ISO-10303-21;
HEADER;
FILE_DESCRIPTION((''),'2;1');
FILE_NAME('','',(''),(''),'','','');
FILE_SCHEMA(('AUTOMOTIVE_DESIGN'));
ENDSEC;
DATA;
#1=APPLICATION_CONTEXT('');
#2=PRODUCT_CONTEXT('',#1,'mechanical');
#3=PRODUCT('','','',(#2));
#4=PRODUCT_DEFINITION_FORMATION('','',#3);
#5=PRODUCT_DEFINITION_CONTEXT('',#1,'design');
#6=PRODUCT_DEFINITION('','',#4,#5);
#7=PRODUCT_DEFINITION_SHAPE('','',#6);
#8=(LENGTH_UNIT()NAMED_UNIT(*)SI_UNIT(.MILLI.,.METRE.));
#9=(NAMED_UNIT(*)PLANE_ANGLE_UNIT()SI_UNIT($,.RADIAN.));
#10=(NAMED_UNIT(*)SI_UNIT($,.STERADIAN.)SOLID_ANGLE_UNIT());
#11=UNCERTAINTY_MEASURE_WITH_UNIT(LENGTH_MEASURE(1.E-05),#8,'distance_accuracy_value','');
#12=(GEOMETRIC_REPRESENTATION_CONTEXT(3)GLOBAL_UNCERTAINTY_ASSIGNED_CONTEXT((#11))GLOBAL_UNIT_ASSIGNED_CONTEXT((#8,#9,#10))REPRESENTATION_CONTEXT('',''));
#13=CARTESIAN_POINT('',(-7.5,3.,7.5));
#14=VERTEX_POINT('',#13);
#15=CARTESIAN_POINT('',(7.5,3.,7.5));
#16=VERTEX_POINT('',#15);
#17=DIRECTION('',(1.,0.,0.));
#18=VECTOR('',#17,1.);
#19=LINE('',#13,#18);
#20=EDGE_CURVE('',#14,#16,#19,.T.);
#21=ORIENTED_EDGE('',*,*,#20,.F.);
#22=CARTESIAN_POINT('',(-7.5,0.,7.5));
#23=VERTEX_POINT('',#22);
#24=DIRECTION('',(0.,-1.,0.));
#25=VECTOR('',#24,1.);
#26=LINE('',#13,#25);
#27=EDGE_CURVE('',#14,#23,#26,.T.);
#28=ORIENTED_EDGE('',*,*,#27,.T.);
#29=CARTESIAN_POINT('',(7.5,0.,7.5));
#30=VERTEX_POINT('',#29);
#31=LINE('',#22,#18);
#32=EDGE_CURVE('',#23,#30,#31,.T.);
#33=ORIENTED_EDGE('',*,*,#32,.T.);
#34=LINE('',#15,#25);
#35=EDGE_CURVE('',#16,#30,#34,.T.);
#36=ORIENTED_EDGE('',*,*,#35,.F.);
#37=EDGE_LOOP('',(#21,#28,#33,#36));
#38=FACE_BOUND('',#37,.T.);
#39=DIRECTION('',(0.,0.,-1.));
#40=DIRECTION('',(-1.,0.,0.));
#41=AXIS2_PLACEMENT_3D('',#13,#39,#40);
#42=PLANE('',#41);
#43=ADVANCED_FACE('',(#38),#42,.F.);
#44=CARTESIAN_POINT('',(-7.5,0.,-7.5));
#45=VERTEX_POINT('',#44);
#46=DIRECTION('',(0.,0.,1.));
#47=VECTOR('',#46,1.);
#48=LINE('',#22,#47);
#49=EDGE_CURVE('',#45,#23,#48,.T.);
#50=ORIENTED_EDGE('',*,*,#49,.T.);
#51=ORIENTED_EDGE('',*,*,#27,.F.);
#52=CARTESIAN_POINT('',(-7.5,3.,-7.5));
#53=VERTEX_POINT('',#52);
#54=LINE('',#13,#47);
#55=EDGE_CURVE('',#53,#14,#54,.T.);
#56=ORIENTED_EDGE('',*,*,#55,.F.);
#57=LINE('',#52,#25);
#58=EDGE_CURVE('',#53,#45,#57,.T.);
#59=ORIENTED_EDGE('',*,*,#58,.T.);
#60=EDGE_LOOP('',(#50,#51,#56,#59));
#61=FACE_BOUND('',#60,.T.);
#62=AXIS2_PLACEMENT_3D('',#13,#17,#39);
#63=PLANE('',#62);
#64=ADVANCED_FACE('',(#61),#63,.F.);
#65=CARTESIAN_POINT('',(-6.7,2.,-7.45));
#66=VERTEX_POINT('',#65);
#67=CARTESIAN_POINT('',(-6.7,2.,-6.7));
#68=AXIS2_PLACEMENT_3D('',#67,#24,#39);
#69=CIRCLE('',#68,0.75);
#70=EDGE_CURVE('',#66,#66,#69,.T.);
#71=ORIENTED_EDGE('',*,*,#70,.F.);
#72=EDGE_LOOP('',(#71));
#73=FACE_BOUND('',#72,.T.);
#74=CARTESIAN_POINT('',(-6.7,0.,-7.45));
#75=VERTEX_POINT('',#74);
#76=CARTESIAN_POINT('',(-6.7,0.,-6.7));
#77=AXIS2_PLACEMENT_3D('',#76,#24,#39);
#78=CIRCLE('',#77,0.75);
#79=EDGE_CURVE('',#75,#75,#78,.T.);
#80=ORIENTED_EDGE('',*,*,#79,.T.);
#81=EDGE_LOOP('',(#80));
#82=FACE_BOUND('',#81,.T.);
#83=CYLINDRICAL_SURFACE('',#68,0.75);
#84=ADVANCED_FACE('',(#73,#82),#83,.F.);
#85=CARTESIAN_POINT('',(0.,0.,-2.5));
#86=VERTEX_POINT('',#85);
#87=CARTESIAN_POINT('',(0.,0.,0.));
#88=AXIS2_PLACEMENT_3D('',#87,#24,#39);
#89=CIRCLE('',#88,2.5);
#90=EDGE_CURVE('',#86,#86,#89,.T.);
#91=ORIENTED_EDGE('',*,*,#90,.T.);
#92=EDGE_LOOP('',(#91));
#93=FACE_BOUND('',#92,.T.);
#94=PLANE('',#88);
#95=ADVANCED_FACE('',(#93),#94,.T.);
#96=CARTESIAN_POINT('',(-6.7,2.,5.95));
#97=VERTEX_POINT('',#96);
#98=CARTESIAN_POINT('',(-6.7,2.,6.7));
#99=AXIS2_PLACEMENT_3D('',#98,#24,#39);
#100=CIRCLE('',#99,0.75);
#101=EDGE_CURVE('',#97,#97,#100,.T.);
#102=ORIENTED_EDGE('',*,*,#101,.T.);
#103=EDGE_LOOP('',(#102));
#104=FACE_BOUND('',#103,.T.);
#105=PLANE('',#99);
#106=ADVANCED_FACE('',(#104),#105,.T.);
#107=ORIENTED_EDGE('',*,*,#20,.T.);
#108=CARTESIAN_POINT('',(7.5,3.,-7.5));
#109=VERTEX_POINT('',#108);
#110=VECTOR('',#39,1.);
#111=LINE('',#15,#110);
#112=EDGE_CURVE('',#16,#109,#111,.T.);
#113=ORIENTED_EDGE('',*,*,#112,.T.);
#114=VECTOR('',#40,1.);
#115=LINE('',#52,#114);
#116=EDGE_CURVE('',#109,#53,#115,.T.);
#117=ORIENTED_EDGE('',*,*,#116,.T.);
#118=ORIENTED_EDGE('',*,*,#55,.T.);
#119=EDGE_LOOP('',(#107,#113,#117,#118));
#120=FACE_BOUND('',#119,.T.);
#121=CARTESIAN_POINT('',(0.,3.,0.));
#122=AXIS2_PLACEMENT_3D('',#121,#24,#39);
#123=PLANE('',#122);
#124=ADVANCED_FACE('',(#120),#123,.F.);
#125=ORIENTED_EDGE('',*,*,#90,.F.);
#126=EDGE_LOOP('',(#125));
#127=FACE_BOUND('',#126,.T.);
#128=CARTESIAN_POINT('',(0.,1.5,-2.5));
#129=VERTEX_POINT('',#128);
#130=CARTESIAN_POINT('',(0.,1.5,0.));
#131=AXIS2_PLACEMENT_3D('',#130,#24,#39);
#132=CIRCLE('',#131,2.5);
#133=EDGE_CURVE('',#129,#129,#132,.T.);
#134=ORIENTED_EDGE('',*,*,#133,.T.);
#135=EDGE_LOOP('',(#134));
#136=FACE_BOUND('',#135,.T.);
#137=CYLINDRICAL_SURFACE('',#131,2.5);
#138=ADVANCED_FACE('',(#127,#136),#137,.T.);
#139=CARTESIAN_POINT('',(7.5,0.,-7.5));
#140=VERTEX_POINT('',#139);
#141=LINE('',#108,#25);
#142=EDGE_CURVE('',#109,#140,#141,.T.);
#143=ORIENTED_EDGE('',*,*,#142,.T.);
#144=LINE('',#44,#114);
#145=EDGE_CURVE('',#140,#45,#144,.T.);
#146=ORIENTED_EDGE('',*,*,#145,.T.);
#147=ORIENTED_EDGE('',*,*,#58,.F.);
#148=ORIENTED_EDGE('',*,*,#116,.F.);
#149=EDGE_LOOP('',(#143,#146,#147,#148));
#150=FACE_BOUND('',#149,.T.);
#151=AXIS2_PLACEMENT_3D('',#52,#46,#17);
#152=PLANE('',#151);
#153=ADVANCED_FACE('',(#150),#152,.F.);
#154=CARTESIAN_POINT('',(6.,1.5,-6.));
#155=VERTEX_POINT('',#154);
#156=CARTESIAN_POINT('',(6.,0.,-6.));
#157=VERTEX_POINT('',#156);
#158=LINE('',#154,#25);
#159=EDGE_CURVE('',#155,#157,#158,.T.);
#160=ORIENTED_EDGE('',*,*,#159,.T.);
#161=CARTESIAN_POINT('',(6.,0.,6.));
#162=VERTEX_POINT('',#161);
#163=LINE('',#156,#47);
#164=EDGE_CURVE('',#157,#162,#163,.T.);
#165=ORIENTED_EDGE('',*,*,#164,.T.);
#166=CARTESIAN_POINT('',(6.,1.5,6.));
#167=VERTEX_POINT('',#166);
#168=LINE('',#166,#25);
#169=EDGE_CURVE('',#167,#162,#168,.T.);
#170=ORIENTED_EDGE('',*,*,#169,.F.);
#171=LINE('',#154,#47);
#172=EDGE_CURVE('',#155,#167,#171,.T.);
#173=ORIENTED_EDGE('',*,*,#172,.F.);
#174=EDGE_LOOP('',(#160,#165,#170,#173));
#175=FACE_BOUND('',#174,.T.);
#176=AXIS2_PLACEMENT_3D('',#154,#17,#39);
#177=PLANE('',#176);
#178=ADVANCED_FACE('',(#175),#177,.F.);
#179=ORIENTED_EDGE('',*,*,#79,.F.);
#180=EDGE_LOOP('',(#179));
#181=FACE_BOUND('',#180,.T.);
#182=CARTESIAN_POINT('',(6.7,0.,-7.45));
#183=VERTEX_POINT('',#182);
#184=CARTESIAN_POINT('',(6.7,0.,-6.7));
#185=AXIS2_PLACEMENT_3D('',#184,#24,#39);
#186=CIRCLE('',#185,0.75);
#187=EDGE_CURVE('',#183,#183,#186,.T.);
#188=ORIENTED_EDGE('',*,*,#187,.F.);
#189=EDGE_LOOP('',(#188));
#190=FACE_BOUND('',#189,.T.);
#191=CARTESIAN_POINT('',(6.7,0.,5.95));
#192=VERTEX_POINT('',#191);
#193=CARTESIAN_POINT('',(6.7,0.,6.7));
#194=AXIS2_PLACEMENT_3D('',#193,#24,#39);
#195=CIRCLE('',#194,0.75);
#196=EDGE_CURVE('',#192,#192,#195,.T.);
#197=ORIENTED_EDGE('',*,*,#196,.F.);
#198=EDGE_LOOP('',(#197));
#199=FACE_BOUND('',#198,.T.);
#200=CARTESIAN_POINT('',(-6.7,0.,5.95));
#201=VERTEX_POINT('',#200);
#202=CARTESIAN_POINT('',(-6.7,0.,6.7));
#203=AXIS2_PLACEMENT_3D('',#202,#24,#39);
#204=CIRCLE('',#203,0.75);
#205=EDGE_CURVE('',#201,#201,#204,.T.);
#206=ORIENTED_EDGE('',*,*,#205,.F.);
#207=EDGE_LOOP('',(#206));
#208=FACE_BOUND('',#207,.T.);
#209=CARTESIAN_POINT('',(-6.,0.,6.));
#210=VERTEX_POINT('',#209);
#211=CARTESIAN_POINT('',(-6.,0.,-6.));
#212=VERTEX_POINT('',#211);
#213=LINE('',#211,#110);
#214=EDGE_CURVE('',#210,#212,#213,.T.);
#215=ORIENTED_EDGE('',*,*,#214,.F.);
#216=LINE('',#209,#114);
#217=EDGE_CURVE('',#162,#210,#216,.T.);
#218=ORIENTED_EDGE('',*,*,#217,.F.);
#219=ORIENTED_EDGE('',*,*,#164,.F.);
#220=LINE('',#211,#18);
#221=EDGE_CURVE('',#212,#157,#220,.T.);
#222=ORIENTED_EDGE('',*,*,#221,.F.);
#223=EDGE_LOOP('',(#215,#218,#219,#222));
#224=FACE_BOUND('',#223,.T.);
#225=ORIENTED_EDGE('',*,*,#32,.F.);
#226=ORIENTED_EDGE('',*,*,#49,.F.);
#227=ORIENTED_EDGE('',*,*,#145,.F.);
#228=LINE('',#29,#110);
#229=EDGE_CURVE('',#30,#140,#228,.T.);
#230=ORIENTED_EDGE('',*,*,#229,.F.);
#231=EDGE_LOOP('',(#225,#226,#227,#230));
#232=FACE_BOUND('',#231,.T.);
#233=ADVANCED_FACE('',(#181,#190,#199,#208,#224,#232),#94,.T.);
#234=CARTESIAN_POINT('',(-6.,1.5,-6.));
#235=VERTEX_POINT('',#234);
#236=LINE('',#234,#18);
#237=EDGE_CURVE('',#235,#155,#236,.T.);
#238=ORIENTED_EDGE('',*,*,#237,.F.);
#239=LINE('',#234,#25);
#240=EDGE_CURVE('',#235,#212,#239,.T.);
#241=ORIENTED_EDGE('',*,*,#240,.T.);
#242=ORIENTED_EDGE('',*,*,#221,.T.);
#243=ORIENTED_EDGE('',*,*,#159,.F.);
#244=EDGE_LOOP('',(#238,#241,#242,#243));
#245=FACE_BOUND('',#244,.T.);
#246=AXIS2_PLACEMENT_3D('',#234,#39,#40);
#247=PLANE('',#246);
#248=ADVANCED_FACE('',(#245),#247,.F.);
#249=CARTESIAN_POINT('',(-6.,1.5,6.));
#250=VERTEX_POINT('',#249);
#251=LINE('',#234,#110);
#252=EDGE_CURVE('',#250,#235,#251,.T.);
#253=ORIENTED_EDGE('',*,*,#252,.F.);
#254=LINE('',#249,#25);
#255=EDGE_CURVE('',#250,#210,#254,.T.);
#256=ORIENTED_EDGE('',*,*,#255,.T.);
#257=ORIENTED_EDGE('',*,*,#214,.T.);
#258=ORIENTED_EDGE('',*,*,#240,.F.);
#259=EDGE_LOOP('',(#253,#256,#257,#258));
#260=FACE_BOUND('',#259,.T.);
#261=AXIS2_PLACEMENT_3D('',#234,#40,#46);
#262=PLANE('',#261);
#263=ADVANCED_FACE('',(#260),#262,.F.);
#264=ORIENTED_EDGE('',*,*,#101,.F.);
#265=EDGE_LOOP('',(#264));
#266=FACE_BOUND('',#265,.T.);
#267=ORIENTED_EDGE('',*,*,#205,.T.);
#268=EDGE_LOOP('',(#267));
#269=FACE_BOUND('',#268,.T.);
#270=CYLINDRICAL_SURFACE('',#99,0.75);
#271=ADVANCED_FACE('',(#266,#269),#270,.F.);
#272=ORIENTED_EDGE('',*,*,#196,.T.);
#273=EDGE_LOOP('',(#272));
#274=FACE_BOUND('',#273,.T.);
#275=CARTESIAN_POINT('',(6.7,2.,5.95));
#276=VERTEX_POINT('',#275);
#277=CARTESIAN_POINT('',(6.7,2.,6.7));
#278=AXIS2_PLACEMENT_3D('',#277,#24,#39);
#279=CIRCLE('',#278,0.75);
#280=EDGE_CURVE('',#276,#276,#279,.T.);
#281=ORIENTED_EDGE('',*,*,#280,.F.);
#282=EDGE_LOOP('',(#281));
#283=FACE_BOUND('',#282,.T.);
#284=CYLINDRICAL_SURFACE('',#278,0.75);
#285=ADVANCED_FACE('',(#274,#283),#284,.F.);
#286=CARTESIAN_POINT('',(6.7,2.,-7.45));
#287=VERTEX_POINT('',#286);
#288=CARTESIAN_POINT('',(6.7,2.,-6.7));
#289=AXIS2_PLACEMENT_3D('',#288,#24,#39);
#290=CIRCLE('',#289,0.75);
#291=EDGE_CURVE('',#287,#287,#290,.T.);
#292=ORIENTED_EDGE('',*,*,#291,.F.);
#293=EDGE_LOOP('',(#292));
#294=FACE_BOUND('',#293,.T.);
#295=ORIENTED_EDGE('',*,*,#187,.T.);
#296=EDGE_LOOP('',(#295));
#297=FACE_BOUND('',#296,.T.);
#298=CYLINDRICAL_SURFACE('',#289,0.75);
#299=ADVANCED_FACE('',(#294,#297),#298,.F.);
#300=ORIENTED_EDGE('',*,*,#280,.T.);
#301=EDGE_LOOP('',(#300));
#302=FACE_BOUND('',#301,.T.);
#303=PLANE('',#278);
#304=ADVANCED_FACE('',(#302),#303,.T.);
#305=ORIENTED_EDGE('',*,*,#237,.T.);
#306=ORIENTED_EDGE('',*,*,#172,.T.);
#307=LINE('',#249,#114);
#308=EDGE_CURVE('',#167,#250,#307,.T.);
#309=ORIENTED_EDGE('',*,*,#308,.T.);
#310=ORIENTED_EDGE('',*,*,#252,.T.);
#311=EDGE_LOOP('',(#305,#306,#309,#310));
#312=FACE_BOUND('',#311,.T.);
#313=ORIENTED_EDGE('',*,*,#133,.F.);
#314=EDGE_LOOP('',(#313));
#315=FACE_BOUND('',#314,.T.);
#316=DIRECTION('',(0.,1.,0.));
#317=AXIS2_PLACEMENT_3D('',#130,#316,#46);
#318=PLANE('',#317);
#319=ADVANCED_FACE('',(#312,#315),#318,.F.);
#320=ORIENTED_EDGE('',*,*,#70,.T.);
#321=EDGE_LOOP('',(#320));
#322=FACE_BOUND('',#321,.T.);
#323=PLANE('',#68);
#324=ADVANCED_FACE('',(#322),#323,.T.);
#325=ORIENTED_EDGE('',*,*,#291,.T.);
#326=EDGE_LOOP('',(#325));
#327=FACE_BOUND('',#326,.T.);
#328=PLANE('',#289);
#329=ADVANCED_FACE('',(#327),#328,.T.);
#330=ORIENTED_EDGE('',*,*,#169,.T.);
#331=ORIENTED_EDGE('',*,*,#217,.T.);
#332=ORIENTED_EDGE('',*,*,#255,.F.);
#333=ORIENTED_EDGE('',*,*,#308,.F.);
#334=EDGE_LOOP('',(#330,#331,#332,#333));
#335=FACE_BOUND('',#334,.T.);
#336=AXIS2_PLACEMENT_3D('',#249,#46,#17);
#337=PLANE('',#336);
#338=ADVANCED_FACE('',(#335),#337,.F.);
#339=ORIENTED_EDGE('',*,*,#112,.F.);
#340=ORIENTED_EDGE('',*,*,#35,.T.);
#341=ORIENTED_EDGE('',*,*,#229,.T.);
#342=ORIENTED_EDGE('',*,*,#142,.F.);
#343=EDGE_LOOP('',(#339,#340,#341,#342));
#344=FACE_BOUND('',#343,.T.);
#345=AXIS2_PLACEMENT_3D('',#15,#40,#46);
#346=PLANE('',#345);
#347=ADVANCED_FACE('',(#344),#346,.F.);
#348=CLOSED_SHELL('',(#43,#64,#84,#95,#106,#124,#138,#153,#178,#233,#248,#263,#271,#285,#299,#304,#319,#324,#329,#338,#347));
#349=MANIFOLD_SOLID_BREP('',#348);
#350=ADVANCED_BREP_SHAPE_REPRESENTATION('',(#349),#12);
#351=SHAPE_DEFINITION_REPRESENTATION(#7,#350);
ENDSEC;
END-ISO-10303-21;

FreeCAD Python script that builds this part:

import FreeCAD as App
import Part
import Sketcher

doc = App.newDocument("Part")
params = doc.addObject("Spreadsheet::Sheet", "Params")
for row, (alias, value) in enumerate([
    ("sketch1_width", "15 mm"),
    ("pad1_length", "3 mm"),
    ("sketch2_diameter", "5 mm"),
    ("sketch2_width", "12 mm"),
    ("pocket1_length", "1.5 mm"),
    ("sketch3_diameter", "1.5 mm"),
    ("pocket2_length", "2 mm"),
], start=1):
    params.set(f"A{row}", alias)
    params.set(f"B{row}", "=" + value)
    params.setAlias(f"B{row}", alias)

body = doc.addObject("PartDesign::Body", "Body")

sketch1 = doc.addObject("Sketcher::SketchObject", "Sketch")
body.addObject(sketch1)
sketch1.AttachmentSupport = (doc.XZ_Plane, [""])
sketch1.MapMode = "FlatFace"
sketch1.addGeometry(Part.LineSegment(App.Vector(-8, -8, 0), App.Vector(-8, 8, 0)), False)
sketch1.addGeometry(Part.LineSegment(App.Vector(-8, 8, 0), App.Vector(8, 8, 0)), False)
sketch1.addGeometry(Part.LineSegment(App.Vector(8, 8, 0), App.Vector(8, -8, 0)), False)
sketch1.addGeometry(Part.LineSegment(App.Vector(8, -8, 0), App.Vector(-8, -8, 0)), False)
sketch1.addConstraint(Sketcher.Constraint("Coincident", 0, 2, 1, 1))
sketch1.addConstraint(Sketcher.Constraint("Coincident", 1, 2, 2, 1))
sketch1.addConstraint(Sketcher.Constraint("Coincident", 2, 2, 3, 1))
sketch1.addConstraint(Sketcher.Constraint("Coincident", 3, 2, 0, 1))
sketch1.addConstraint(Sketcher.Constraint("Vertical", 0))
sketch1.addConstraint(Sketcher.Constraint("Horizontal", 1))
sketch1.addConstraint(Sketcher.Constraint("Vertical", 2))
sketch1.addConstraint(Sketcher.Constraint("Horizontal", 3))
sketch1.addConstraint(Sketcher.Constraint("Symmetric", 0, 2, 2, 2, -1, 1))
sketch1.addConstraint(Sketcher.Constraint("Equal", 3, 0))
sketch1.addConstraint(Sketcher.Constraint("DistanceX", 1, 1, 1, 2, 15.0))
sketch1.setExpression("Constraints[10]", "Params.sketch1_width")
pad1 = doc.addObject("PartDesign::Pad", "Pad")
body.addObject(pad1)
pad1.Profile = sketch1
pad1.setExpression("Length", "Params.pad1_length")
pad1.Reversed = True

sketch2 = doc.addObject("Sketcher::SketchObject", "Sketch001")
body.addObject(sketch2)
sketch2.AttachmentSupport = (doc.XZ_Plane, [""])
sketch2.MapMode = "FlatFace"
sketch2.addGeometry(Part.LineSegment(App.Vector(-6, 6, 0), App.Vector(-6, -6, 0)), False)
sketch2.addGeometry(Part.LineSegment(App.Vector(-6, -6, 0), App.Vector(6, -6, 0)), False)
sketch2.addGeometry(Part.LineSegment(App.Vector(6, -6, 0), App.Vector(6, 6, 0)), False)
sketch2.addGeometry(Part.LineSegment(App.Vector(6, 6, 0), App.Vector(-6, 6, 0)), False)
sketch2.addGeometry(Part.Circle(App.Vector(0, 0, 0), App.Vector(0, 0, 1), 2.5), False)
sketch2.addConstraint(Sketcher.Constraint("Coincident", 0, 2, 1, 1))
sketch2.addConstraint(Sketcher.Constraint("Coincident", 1, 2, 2, 1))
sketch2.addConstraint(Sketcher.Constraint("Coincident", 2, 2, 3, 1))
sketch2.addConstraint(Sketcher.Constraint("Coincident", 3, 2, 0, 1))
sketch2.addConstraint(Sketcher.Constraint("Vertical", 0))
sketch2.addConstraint(Sketcher.Constraint("Horizontal", 1))
sketch2.addConstraint(Sketcher.Constraint("Vertical", 2))
sketch2.addConstraint(Sketcher.Constraint("Horizontal", 3))
sketch2.addConstraint(Sketcher.Constraint("Coincident", 4, 3, -1, 1))
sketch2.addConstraint(Sketcher.Constraint("Symmetric", 0, 2, 2, 2, -1, 1))
sketch2.addConstraint(Sketcher.Constraint("Equal", 3, 0))
sketch2.addConstraint(Sketcher.Constraint("Diameter", 4, 5.0))
sketch2.addConstraint(Sketcher.Constraint("DistanceX", 1, 1, 1, 2, 12.0))
sketch2.setExpression("Constraints[11]", "Params.sketch2_diameter")
sketch2.setExpression("Constraints[12]", "Params.sketch2_width")
pocket1 = doc.addObject("PartDesign::Pocket", "Pocket")
body.addObject(pocket1)
pocket1.Profile = sketch2
pocket1.setExpression("Length", "Params.pocket1_length")

sketch3 = doc.addObject("Sketcher::SketchObject", "Sketch002")
body.addObject(sketch3)
sketch3.AttachmentSupport = (doc.XZ_Plane, [""])
sketch3.MapMode = "FlatFace"
sketch3.addGeometry(Part.Circle(App.Vector(-6.7, 6.7, 0), App.Vector(0, 0, 1), 0.8), False)
sketch3.addGeometry(Part.Circle(App.Vector(6.7, 6.7, 0), App.Vector(0, 0, 1), 0.8), False)
sketch3.addGeometry(Part.Circle(App.Vector(6.7, -6.7, 0), App.Vector(0, 0, 1), 0.8), False)
sketch3.addGeometry(Part.Circle(App.Vector(-6.7, -6.7, 0), App.Vector(0, 0, 1), 0.8), False)
sketch3.addConstraint(Sketcher.Constraint("Equal", 0, 1))
sketch3.addConstraint(Sketcher.Constraint("Equal", 1, 2))
sketch3.addConstraint(Sketcher.Constraint("Equal", 2, 3))
sketch3.addConstraint(Sketcher.Constraint("Symmetric", 0, 3, 2, 3, -1, 1))
sketch3.addConstraint(Sketcher.Constraint("Symmetric", 1, 3, 3, 3, -1, 1))
sketch3.addConstraint(Sketcher.Constraint("Symmetric", 0, 3, 1, 3, -2))
sketch3.addConstraint(Sketcher.Constraint("Diameter", 0, 1.5))
sketch3.addConstraint(Sketcher.Constraint("DistanceX", 0, 3, -1, 1, 6.7))
sketch3.addConstraint(Sketcher.Constraint("DistanceY", -1, 1, 0, 3, 6.7))
sketch3.setExpression("Constraints[6]", "Params.sketch3_diameter")
pocket2 = doc.addObject("PartDesign::Pocket", "Pocket001")
body.addObject(pocket2)
pocket2.Profile = sketch3
pocket2.setExpression("Length", "Params.pocket2_length")

doc.recompute()
